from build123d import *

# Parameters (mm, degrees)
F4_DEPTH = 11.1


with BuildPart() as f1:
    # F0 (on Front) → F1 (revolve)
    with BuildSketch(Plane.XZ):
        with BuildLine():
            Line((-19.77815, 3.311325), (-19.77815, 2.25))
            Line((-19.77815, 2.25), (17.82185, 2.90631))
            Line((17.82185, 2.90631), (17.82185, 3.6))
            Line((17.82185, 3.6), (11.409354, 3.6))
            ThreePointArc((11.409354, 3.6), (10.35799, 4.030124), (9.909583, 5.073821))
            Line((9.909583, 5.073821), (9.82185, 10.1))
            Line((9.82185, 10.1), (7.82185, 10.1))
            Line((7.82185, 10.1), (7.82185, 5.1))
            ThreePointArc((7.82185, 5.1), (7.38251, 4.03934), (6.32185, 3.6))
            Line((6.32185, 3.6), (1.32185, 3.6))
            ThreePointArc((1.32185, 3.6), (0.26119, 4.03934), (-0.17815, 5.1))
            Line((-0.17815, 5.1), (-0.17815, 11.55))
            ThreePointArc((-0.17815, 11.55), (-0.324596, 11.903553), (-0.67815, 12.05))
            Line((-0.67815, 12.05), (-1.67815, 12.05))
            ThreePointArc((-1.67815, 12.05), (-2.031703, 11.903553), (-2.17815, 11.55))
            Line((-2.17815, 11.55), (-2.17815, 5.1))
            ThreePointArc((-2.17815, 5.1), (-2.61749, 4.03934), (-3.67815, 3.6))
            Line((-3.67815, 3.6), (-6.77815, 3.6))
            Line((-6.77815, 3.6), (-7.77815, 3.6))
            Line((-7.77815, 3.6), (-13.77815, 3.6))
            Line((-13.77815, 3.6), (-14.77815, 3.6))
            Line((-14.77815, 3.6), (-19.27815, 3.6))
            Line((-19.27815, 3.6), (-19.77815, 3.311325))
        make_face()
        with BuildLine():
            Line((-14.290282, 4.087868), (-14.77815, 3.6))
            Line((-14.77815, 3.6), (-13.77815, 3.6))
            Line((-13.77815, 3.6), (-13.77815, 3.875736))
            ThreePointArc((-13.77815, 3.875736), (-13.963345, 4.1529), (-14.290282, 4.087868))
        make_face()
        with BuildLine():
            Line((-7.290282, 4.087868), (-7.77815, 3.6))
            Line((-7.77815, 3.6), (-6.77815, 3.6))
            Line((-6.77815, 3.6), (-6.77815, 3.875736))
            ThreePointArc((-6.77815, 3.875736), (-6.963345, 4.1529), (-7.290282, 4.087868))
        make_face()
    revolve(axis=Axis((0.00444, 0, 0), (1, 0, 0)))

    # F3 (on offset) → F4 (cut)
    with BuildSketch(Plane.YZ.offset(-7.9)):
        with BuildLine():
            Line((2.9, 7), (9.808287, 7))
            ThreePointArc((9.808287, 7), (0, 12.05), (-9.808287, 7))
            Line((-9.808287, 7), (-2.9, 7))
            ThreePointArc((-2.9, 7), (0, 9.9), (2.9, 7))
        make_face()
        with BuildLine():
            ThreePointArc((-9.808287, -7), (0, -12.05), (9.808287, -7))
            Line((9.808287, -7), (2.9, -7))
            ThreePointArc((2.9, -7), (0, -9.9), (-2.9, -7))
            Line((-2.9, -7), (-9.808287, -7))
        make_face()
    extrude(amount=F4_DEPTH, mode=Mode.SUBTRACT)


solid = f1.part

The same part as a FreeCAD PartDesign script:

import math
import FreeCAD as App
import Part
import Sketcher
Q = App.Units.Quantity

doc = App.newDocument("Part")
body = doc.addObject("PartDesign::Body", "Body")

# Sketch on XZ plane
sketch1 = body.newObject("Sketcher::SketchObject", "Sketch")
sketch1.AttachmentSupport = (doc.getObject("XZ_Plane"), [""])
sketch1.MapMode = "FlatFace"
sketch1.addGeometry(Part.LineSegment(App.Vector(-19.78, 3.31, 0), App.Vector(-19.78, 2.25, 0)), False)
sketch1.addGeometry(Part.LineSegment(App.Vector(-19.78, 2.25, 0), App.Vector(17.82, 2.91, 0)), False)
sketch1.addGeometry(Part.LineSegment(App.Vector(17.82, 2.91, 0), App.Vector(17.82, 3.6, 0)), False)
sketch1.addGeometry(Part.LineSegment(App.Vector(17.82, 3.6, 0), App.Vector(11.41, 3.6, 0)), False)
sketch1.addGeometry(Part.ArcOfCircle(Part.Circle(App.Vector(11.41, 5.1, 0), App.Vector(0, 0, 1), 1.5), math.radians(-179), math.radians(-90)), False)
sketch1.addGeometry(Part.LineSegment(App.Vector(9.91, 5.07, 0), App.Vector(9.82, 10.1, 0)), False)
sketch1.addGeometry(Part.LineSegment(App.Vector(9.82, 10.1, 0), App.Vector(7.82, 10.1, 0)), False)
sketch1.addGeometry(Part.LineSegment(App.Vector(7.82, 10.1, 0), App.Vector(7.82, 5.1, 0)), False)
sketch1.addGeometry(Part.ArcOfCircle(Part.Circle(App.Vector(6.32, 5.1, 0), App.Vector(0, 0, 1), 1.5), math.radians(-90), math.radians(0)), False)
sketch1.addGeometry(Part.LineSegment(App.Vector(6.32, 3.6, 0), App.Vector(1.32, 3.6, 0)), False)
sketch1.addGeometry(Part.ArcOfCircle(Part.Circle(App.Vector(1.32, 5.1, 0), App.Vector(0, 0, 1), 1.5), math.radians(-180), math.radians(-90)), False)
sketch1.addGeometry(Part.LineSegment(App.Vector(-0.18, 5.1, 0), App.Vector(-0.18, 11.55, 0)), False)
sketch1.addGeometry(Part.ArcOfCircle(Part.Circle(App.Vector(-0.68, 11.55, 0), App.Vector(0, 0, 1), 0.5), math.radians(0), math.radians(90)), False)
sketch1.addGeometry(Part.LineSegment(App.Vector(-0.68, 12.05, 0), App.Vector(-1.68, 12.05, 0)), False)
sketch1.addGeometry(Part.ArcOfCircle(Part.Circle(App.Vector(-1.68, 11.55, 0), App.Vector(0, 0, 1), 0.5), math.radians(90), math.radians(180)), False)
sketch1.addGeometry(Part.LineSegment(App.Vector(-2.18, 11.55, 0), App.Vector(-2.18, 5.1, 0)), False)
sketch1.addGeometry(Part.ArcOfCircle(Part.Circle(App.Vector(-3.68, 5.1, 0), App.Vector(0, 0, 1), 1.5), math.radians(-90), math.radians(0)), False)
sketch1.addGeometry(Part.LineSegment(App.Vector(-3.68, 3.6, 0), App.Vector(-6.78, 3.6, 0)), False)
sketch1.addGeometry(Part.LineSegment(App.Vector(-6.78, 3.6, 0), App.Vector(-6.78, 3.88, 0)), False)
sketch1.addGeometry(Part.ArcOfCircle(Part.Circle(App.Vector(-7.08, 3.88, 0), App.Vector(0, 0, 1), 0.3), math.radians(0), math.radians(135)), False)
sketch1.addGeometry(Part.LineSegment(App.Vector(-7.29, 4.09, 0), App.Vector(-7.78, 3.6, 0)), False)
sketch1.addGeometry(Part.LineSegment(App.Vector(-7.78, 3.6, 0), App.Vector(-13.78, 3.6, 0)), False)
sketch1.addGeometry(Part.LineSegment(App.Vector(-13.78, 3.6, 0), App.Vector(-13.78, 3.88, 0)), False)
sketch1.addGeometry(Part.ArcOfCircle(Part.Circle(App.Vector(-14.08, 3.88, 0), App.Vector(0, 0, 1), 0.3), math.radians(0), math.radians(135)), False)
sketch1.addGeometry(Part.LineSegment(App.Vector(-14.29, 4.09, 0), App.Vector(-14.78, 3.6, 0)), False)
sketch1.addGeometry(Part.LineSegment(App.Vector(-14.78, 3.6, 0), App.Vector(-19.28, 3.6, 0)), False)
sketch1.addGeometry(Part.LineSegment(App.Vector(-19.28, 3.6, 0), App.Vector(-19.78, 3.31, 0)), False)
sketch1.addConstraint(Sketcher.Constraint("Coincident", 0, 2, 1, 1))
sketch1.addConstraint(Sketcher.Constraint("Coincident", 1, 2, 2, 1))
sketch1.addConstraint(Sketcher.Constraint("Coincident", 2, 2, 3, 1))
sketch1.addConstraint(Sketcher.Constraint("Tangent", 3, 2, 4, 2))
sketch1.addConstraint(Sketcher.Constraint("Tangent", 4, 1, 5, 1))
sketch1.addConstraint(Sketcher.Constraint("Coincident", 5, 2, 6, 1))
sketch1.addConstraint(Sketcher.Constraint("Coincident", 6, 2, 7, 1))
sketch1.addConstraint(Sketcher.Constraint("Tangent", 7, 2, 8, 2))
sketch1.addConstraint(Sketcher.Constraint("Tangent", 8, 1, 9, 1))
sketch1.addConstraint(Sketcher.Constraint("Tangent", 9, 2, 10, 2))
sketch1.addConstraint(Sketcher.Constraint("Tangent", 10, 1, 11, 1))
sketch1.addConstraint(Sketcher.Constraint("Tangent", 11, 2, 12, 1))
sketch1.addConstraint(Sketcher.Constraint("Tangent", 12, 2, 13, 1))
sketch1.addConstraint(Sketcher.Constraint("Coincident", 13, 2, 14, 1))
sketch1.addConstraint(Sketcher.Constraint("Coincident", 14, 2, 15, 1))
sketch1.addConstraint(Sketcher.Constraint("Tangent", 15, 2, 16, 2))
sketch1.addConstraint(Sketcher.Constraint("Tangent", 16, 1, 17, 1))
sketch1.addConstraint(Sketcher.Constraint("Coincident", 17, 2, 18, 1))
sketch1.addConstraint(Sketcher.Constraint("Tangent", 18, 2, 19, 1))
sketch1.addConstraint(Sketcher.Constraint("Tangent", 19, 2, 20, 1))
sketch1.addConstraint(Sketcher.Constraint("Coincident", 20, 2, 21, 1))
sketch1.addConstraint(Sketcher.Constraint("Coincident", 21, 2, 22, 1))
sketch1.addConstraint(Sketcher.Constraint("Tangent", 22, 2, 23, 1))
sketch1.addConstraint(Sketcher.Constraint("Tangent", 23, 2, 24, 1))
sketch1.addConstraint(Sketcher.Constraint("Coincident", 24, 2, 25, 1))
sketch1.addConstraint(Sketcher.Constraint("Coincident", 25, 2, 26, 1))
sketch1.addConstraint(Sketcher.Constraint("Coincident", 26, 2, 0, 1))
sketch1.addConstraint(Sketcher.Constraint("Vertical", 0))
sketch1.addConstraint(Sketcher.Constraint("Vertical", 2))
sketch1.addConstraint(Sketcher.Constraint("Horizontal", 3))
sketch1.addConstraint(Sketcher.Constraint("Horizontal", 6))
sketch1.addConstraint(Sketcher.Constraint("Vertical", 7))
sketch1.addConstraint(Sketcher.Constraint("Horizontal", 9))
sketch1.addConstraint(Sketcher.Constraint("Vertical", 11))
sketch1.addConstraint(Sketcher.Constraint("Horizontal", 13))
sketch1.addConstraint(Sketcher.Constraint("Vertical", 15))
sketch1.addConstraint(Sketcher.Constraint("Horizontal", 17))
sketch1.addConstraint(Sketcher.Constraint("Vertical", 18))
sketch1.addConstraint(Sketcher.Constraint("Horizontal", 21))
sketch1.addConstraint(Sketcher.Constraint("Vertical", 22))
sketch1.addConstraint(Sketcher.Constraint("Horizontal", 25))
sketch1.addConstraint(Sketcher.Constraint("Equal", 8, 10))
sketch1.addConstraint(Sketcher.Constraint("Equal", 12, 14))
sketch1.addConstraint(Sketcher.Constraint("Equal", 10, 16))
sketch1.addConstraint(Sketcher.Constraint("Equal", 19, 23))
sketch1.addConstraint(Sketcher.Constraint("Perpendicular", 1, 5))
sketch1.addConstraint(Sketcher.Constraint("Parallel", 20, 24))
sketch1.addConstraint(Sketcher.Constraint("Horizontal", 10, 3, 16, 3))
sketch1.addConstraint(Sketcher.Constraint("Horizontal", 19, 3, 23, 3))
sketch1.addConstraint(Sketcher.Constraint("Horizontal", 3, 2, 8, 1))
sketch1.addConstraint(Sketcher.Constraint("Horizontal", 11, 2, 14, 2))
sketch1.addConstraint(Sketcher.Constraint("Horizontal", 17, 2, 20, 2))
sketch1.addConstraint(Sketcher.Constraint("Horizontal", 21, 2, 24, 2))
sketch1.addConstraint(Sketcher.Constraint("Vertical", 14, 3, 13, 2))
sketch1.addConstraint(Sketcher.Constraint("Equal", 9, 7))
sketch1.addConstraint(Sketcher.Constraint("Radius", 4, 1.499998))
sketch1.addConstraint(Sketcher.Constraint("Radius", 8, 1.500001))
sketch1.addConstraint(Sketcher.Constraint("Radius", 12, 0.5))
sketch1.addConstraint(Sketcher.Constraint("Radius", 19, 0.3))
sketch1.addConstraint(Sketcher.Constraint("DistanceX", 6, 2, 6, 1, 2.0))
sketch1.addConstraint(Sketcher.Constraint("DistanceX", 9, 2, 9, 1, 5.0))
sketch1.addConstraint(Sketcher.Constraint("DistanceX", 13, 2, 13, 1, 1.0))
sketch1.addConstraint(Sketcher.Constraint("DistanceX", 21, 2, 21, 1, 6.0))
sketch1.addConstraint(Sketcher.Constraint("Angle", 1, Q("0.999999 deg")))
sketch1.addConstraint(Sketcher.Constraint("Angle", 20, Q("-135 deg")))
sketch1.addConstraint(Sketcher.Constraint("Angle", 26, Q("-150.000012 deg")))
sketch1.addConstraint(Sketcher.Constraint("DistanceX", 17, 2, 17, 1, 3.1))
sketch1.addConstraint(Sketcher.Constraint("DistanceX", 25, 2, 25, 1, 4.5))
sketch1.addConstraint(Sketcher.Constraint("DistanceX", 23, 3, 19, 3, 7.0))
sketch1.addConstraint(Sketcher.Constraint("DistanceX", 0, 2, 21, 2, 6.0))
sketch1.addConstraint(Sketcher.Constraint("DistanceY", 11, 1, 11, 2, 6.45))
sketch1.addConstraint(Sketcher.Constraint("DistanceY", -1, 1, 4, 3, 5.099998))
sketch1.addConstraint(Sketcher.Constraint("DistanceY", 0, 2, 14, 3, 9.299999))
sketch1.addConstraint(Sketcher.Constraint("DistanceX", 8, 3, 1, 2, 11.500001))
sketch1.addConstraint(Sketcher.Constraint("DistanceX", -1, 1, 8, 3, 6.321849))
revolution = body.newObject("PartDesign::Revolution", "Revolution")
revolution.Profile = sketch1
revolution.ReferenceAxis = (sketch1, ["H_Axis"])
revolution.Angle = 360

# Sketch on YZ plane
sketch2 = body.newObject("Sketcher::SketchObject", "Sketch001")
sketch2.AttachmentSupport = (doc.getObject("YZ_Plane"), [""])
sketch2.MapMode = "FlatFace"
sketch2.AttachmentOffset = App.Placement(App.Vector(0, 0, -7.9), App.Rotation())
sketch2.addGeometry(Part.LineSegment(App.Vector(2.9, 7, 0), App.Vector(9.8, 7, 0)), False)
sketch2.addGeometry(Part.ArcOfCircle(Part.Circle(App.Vector(0, 0, 0), App.Vector(0, 0, 1), 12), math.radians(36), math.radians(144)), False)
sketch2.addGeometry(Part.LineSegment(App.Vector(-9.8, 7, 0), App.Vector(-2.9, 7, 0)), False)
sketch2.addGeometry(Part.ArcOfCircle(Part.Circle(App.Vector(0, 7, 0), App.Vector(0, 0, 1), 2.9), math.radians(0), math.radians(180)), False)
sketch2.addGeometry(Part.ArcOfCircle(Part.Circle(App.Vector(0, 0, 0), App.Vector(0, 0, 1), 12), math.radians(-144), math.radians(-36)), False)
sketch2.addGeometry(Part.LineSegment(App.Vector(9.8, -7, 0), App.Vector(2.9, -7, 0)), False)
sketch2.addGeometry(Part.ArcOfCircle(Part.Circle(App.Vector(0, -7, 0), App.Vector(0, 0, 1), 2.9), math.radians(180), math.radians(360)), False)
sketch2.addGeometry(Part.LineSegment(App.Vector(-2.9, -7, 0), App.Vector(-9.8, -7, 0)), False)
sketch2.addConstraint(Sketcher.Constraint("Coincident", 0, 2, 1, 1))
sketch2.addConstraint(Sketcher.Constraint("Coincident", 1, 2, 2, 1))
sketch2.addConstraint(Sketcher.Constraint("Coincident", 2, 2, 3, 2))
sketch2.addConstraint(Sketcher.Constraint("Coincident", 3, 1, 0, 1))
sketch2.addConstraint(Sketcher.Constraint("Coincident", 4, 2, 5, 1))
sketch2.addConstraint(Sketcher.Constraint("Coincident", 5, 2, 6, 2))
sketch2.addConstraint(Sketcher.Constraint("Coincident", 6, 1, 7, 1))
sketch2.addConstraint(Sketcher.Constraint("Coincident", 7, 2, 4, 1))
sketch2.addConstraint(Sketcher.Constraint("Horizontal", 0))
sketch2.addConstraint(Sketcher.Constraint("Horizontal", 2))
sketch2.addConstraint(Sketcher.Constraint("Horizontal", 5))
sketch2.addConstraint(Sketcher.Constraint("Horizontal", 7))
sketch2.addConstraint(Sketcher.Constraint("Coincident", 1, 3, -1, 1))
sketch2.addConstraint(Sketcher.Constraint("Coincident", 4, 3, -1, 1))
sketch2.addConstraint(Sketcher.Constraint("Equal", 1, 4))
sketch2.addConstraint(Sketcher.Constraint("Equal", 3, 6))
sketch2.addConstraint(Sketcher.Constraint("Symmetric", 3, 3, 6, 3, -1, 1))
sketch2.addConstraint(Sketcher.Constraint("Symmetric", 2, 2, 3, 1, -2))
sketch2.addConstraint(Sketcher.Constraint("Horizontal", 3, 3, 0, 2))
sketch2.addConstraint(Sketcher.Constraint("Horizontal", 6, 3, 4, 2))
sketch2.addConstraint(Sketcher.Constraint("Horizontal", 5, 2, 6, 1))
sketch2.addConstraint(Sketcher.Constraint("Radius", 3, 2.9))
sketch2.addConstraint(Sketcher.Constraint("Radius", 1, 12.049999))
sketch2.addConstraint(Sketcher.Constraint("DistanceY", -1, 1, 3, 3, 7.0))
pocket1 = body.newObject("PartDesign::Pocket", "Pocket")
pocket1.Profile = sketch2
pocket1.Length = 11.1
pocket1.Reversed = True

doc.recompute()
